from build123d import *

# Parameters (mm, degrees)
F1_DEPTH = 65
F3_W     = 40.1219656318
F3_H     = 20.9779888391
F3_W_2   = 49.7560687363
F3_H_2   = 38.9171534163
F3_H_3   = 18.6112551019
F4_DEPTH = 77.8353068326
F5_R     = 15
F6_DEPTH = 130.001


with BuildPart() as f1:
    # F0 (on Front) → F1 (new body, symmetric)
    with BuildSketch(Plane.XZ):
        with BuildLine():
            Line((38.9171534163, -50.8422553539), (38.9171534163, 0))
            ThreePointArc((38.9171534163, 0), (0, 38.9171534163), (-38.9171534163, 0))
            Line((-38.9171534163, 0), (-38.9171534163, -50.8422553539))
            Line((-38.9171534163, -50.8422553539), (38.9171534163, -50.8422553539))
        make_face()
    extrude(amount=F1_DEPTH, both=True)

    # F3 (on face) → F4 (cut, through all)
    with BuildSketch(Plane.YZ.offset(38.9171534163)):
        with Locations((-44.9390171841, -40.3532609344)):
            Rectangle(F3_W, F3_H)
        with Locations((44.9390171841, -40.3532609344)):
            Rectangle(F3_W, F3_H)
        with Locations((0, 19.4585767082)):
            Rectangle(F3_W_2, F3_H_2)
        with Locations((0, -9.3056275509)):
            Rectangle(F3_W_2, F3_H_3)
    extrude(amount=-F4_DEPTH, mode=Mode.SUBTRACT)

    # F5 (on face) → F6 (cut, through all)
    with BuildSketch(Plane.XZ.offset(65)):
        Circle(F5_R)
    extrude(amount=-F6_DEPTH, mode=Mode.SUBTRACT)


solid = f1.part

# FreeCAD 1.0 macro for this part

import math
import FreeCAD as App
import Part
import Sketcher

V = App.Vector
Q = App.Units.Quantity

doc = App.newDocument("Part")
body = doc.addObject("PartDesign::Body", "Body")

sketch1 = body.newObject("Sketcher::SketchObject", "Sketch")
sketch1.AttachmentSupport = (doc.getObject("XZ_Plane"), [""])
sketch1.MapMode = "FlatFace"
sketch1.addGeometry([
    Part.LineSegment(V(39, -51, 0), V(39, 0, 0)),
    Part.ArcOfCircle(Part.Circle(V(0, 0, 0), V(0, 0, 1), 39), math.radians(0), math.radians(180)),
    Part.LineSegment(V(-39, 0, 0), V(-39, -51, 0)),
    Part.LineSegment(V(-39, -51, 0), V(39, -51, 0)),
], False)
sketch1.addConstraint([
    Sketcher.Constraint("Tangent", 0, 2, 1, 1),
    Sketcher.Constraint("Tangent", 1, 2, 2, 1),
    Sketcher.Constraint("Coincident", 2, 2, 3, 1),
    Sketcher.Constraint("Coincident", 3, 2, 0, 1),
    Sketcher.Constraint("Vertical", 0),
    Sketcher.Constraint("Vertical", 2),
    Sketcher.Constraint("Horizontal", 3),
    Sketcher.Constraint("Coincident", 1, 3, -1, 1),
    Sketcher.Constraint("Radius", 1, Q("38.917153 mm")),
    Sketcher.Constraint("DistanceY", 0, 1, 0, 2, Q("50.842255 mm")),
])
pad1 = body.newObject("PartDesign::Pad", "Pad")
pad1.Profile = sketch1
pad1.Length = 130
pad1.Midplane = True

sketch2 = body.newObject("Sketcher::SketchObject", "Sketch001")
sketch2.AttachmentSupport = (doc.getObject("YZ_Plane"), [""])
sketch2.MapMode = "FlatFace"
sketch2.AttachmentOffset = App.Placement(V(0, 0, 38.917153), App.Rotation())
sketch2.addGeometry([
    Part.LineSegment(V(-65, -30, 0), V(-65, -51, 0)),
    Part.LineSegment(V(-65, -51, 0), V(-25, -51, 0)),
    Part.LineSegment(V(-25, -51, 0), V(-25, -30, 0)),
    Part.LineSegment(V(-25, -30, 0), V(-65, -30, 0)),
    Part.LineSegment(V(25, -30, 0), V(25, -51, 0)),
    Part.LineSegment(V(25, -51, 0), V(65, -51, 0)),
    Part.LineSegment(V(65, -51, 0), V(65, -30, 0)),
    Part.LineSegment(V(65, -30, 0), V(25, -30, 0)),
    Part.LineSegment(V(-25, 39, 0), V(-25, -19, 0)),
    Part.LineSegment(V(-25, -19, 0), V(25, -19, 0)),
    Part.LineSegment(V(25, -19, 0), V(25, 39, 0)),
    Part.LineSegment(V(25, 39, 0), V(-25, 39, 0)),
], False)
sketch2.addConstraint([
    Sketcher.Constraint("Coincident", 0, 2, 1, 1),
    Sketcher.Constraint("Coincident", 1, 2, 2, 1),
    Sketcher.Constraint("Coincident", 2, 2, 3, 1),
    Sketcher.Constraint("Coincident", 3, 2, 0, 1),
    Sketcher.Constraint("Coincident", 4, 2, 5, 1),
    Sketcher.Constraint("Coincident", 5, 2, 6, 1),
    Sketcher.Constraint("Coincident", 6, 2, 7, 1),
    Sketcher.Constraint("Coincident", 7, 2, 4, 1),
    Sketcher.Constraint("Coincident", 8, 2, 9, 1),
    Sketcher.Constraint("Coincident", 9, 2, 10, 1),
    Sketcher.Constraint("Coincident", 10, 2, 11, 1),
    Sketcher.Constraint("Coincident", 11, 2, 8, 1),
    Sketcher.Constraint("Vertical", 0),
    Sketcher.Constraint("Horizontal", 1),
    Sketcher.Constraint("Vertical", 2),
    Sketcher.Constraint("Horizontal", 3),
    Sketcher.Constraint("Vertical", 4),
    Sketcher.Constraint("Horizontal", 5),
    Sketcher.Constraint("Vertical", 6),
    Sketcher.Constraint("Horizontal", 7),
    Sketcher.Constraint("Vertical", 8),
    Sketcher.Constraint("Horizontal", 9),
    Sketcher.Constraint("Vertical", 10),
    Sketcher.Constraint("Horizontal", 11),
    Sketcher.Constraint("Symmetric", 1, 2, 4, 2, -2),
    Sketcher.Constraint("Symmetric", 3, 2, 6, 2, -2),
    Sketcher.Constraint("Vertical", 2, 2, 8, 2),
    Sketcher.Constraint("Vertical", 7, 2, 9, 2),
    Sketcher.Constraint("DistanceX", 0, 2, -1, 1, Q("65 mm")),
    Sketcher.Constraint("DistanceY", 1, 2, 8, 2, Q("32.231 mm")),
    Sketcher.Constraint("DistanceX", 9, 1, 9, 2, Q("49.756069 mm")),
    Sketcher.Constraint("DistanceY", 0, 2, 0, 1, Q("20.977989 mm")),
    Sketcher.Constraint("DistanceY", 8, 2, 8, 1, Q("57.528409 mm")),
    Sketcher.Constraint("DistanceY", 0, 2, -1, 1, Q("50.842255 mm")),
])
pocket1 = body.newObject("PartDesign::Pocket", "Pocket")
pocket1.Profile = sketch2
pocket1.Type = "ThroughAll"

sketch3 = body.newObject("Sketcher::SketchObject", "Sketch002")
sketch3.AttachmentSupport = (doc.getObject("XZ_Plane"), [""])
sketch3.MapMode = "FlatFace"
sketch3.AttachmentOffset = App.Placement(V(0, 0, 65), App.Rotation())
sketch3.addGeometry(Part.Circle(V(0, 0, 0), V(0, 0, 1), 15), False)
sketch3.addConstraint([
    Sketcher.Constraint("Coincident", 0, 3, -1, 1),
    Sketcher.Constraint("Diameter", 0, Q("30 mm")),
])
pocket2 = body.newObject("PartDesign::Pocket", "Pocket001")
pocket2.Profile = sketch3
pocket2.Type = "ThroughAll"

doc.recompute()
